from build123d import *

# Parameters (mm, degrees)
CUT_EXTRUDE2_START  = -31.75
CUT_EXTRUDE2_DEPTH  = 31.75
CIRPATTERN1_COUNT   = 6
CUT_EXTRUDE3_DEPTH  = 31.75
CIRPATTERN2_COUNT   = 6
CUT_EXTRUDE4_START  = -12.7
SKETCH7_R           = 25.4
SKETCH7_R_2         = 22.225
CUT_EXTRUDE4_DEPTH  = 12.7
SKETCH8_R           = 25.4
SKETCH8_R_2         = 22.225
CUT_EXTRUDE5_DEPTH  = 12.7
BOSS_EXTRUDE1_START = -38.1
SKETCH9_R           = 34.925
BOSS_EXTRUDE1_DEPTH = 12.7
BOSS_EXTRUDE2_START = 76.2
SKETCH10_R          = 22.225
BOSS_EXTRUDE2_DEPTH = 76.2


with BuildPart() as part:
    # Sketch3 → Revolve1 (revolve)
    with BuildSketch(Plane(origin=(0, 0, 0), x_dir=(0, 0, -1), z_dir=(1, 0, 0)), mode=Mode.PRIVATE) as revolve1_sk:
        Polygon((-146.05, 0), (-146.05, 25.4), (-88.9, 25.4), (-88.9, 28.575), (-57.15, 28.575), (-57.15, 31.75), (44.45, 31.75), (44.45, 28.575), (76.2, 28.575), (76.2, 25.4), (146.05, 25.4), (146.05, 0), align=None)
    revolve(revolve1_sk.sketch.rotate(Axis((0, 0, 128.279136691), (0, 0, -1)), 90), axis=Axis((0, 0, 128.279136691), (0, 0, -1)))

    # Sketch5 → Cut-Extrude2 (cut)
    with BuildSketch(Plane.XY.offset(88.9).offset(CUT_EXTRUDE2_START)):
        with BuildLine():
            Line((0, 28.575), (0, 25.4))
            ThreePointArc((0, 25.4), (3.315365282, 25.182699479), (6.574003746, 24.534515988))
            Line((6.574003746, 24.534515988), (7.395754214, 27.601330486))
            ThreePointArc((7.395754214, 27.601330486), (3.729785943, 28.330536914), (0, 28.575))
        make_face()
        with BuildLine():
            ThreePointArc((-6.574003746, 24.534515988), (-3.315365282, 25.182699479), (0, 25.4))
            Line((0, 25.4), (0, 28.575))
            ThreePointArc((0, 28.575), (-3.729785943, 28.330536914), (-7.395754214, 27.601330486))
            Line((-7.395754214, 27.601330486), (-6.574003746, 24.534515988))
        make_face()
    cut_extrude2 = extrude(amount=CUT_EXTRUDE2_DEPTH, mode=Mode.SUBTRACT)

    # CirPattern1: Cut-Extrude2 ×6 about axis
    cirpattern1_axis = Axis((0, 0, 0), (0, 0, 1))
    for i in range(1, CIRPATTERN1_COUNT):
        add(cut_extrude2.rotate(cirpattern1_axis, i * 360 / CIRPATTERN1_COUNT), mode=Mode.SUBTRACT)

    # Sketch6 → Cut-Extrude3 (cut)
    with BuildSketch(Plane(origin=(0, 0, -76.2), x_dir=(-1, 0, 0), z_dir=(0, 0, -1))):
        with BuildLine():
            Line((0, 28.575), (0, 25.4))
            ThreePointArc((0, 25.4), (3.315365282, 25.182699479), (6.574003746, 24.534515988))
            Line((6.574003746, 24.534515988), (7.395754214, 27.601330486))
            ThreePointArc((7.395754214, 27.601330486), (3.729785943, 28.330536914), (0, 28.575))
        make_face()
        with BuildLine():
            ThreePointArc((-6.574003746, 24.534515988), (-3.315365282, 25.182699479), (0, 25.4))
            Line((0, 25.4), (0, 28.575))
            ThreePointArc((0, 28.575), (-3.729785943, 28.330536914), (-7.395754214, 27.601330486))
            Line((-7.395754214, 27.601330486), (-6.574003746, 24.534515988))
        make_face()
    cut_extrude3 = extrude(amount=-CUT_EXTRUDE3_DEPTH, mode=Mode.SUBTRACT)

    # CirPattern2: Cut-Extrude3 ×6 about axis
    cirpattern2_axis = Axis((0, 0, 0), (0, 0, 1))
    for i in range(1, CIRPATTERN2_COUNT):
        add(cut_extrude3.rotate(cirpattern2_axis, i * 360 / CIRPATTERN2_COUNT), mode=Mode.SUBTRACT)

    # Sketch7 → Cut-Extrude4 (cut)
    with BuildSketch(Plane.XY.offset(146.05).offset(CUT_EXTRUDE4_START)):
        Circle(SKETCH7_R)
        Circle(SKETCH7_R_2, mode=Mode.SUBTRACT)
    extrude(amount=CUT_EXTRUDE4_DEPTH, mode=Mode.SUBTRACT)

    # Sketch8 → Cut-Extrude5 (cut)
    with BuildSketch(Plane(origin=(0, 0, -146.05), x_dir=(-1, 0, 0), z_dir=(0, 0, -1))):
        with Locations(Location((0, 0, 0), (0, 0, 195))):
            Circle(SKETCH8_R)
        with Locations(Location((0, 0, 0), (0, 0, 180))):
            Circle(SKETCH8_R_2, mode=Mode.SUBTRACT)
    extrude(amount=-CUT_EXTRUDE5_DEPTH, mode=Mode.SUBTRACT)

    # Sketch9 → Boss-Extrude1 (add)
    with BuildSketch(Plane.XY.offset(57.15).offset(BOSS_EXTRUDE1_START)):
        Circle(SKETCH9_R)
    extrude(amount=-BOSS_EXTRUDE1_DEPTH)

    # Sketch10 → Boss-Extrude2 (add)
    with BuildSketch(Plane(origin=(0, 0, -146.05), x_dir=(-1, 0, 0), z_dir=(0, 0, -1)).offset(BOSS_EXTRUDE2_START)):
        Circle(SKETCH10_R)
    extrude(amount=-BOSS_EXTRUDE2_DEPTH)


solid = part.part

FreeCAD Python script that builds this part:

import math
import FreeCAD as App
import Part
import Sketcher

V = App.Vector
Q = App.Units.Quantity

doc = App.newDocument("Part")
body = doc.addObject("PartDesign::Body", "Body")

# Sketch on YZ plane
sketch1 = body.newObject("Sketcher::SketchObject", "Sketch")
sketch1.AttachmentSupport = (doc.getObject("YZ_Plane"), [""])
sketch1.MapMode = "FlatFace"
sketch1.addGeometry(Part.LineSegment(V(25.4, 146.1, 0), V(0, 146.1, 0)), False)
sketch1.addGeometry(Part.LineSegment(V(0, 146.1, 0), V(0, -146.1, 0)), False)
sketch1.addGeometry(Part.LineSegment(V(0, -146.1, 0), V(25.4, -146.1, 0)), False)
sketch1.addGeometry(Part.LineSegment(V(25.4, -146.1, 0), V(25.4, -76.2, 0)), False)
sketch1.addGeometry(Part.LineSegment(V(25.4, -76.2, 0), V(28.6, -76.2, 0)), False)
sketch1.addGeometry(Part.LineSegment(V(28.6, -76.2, 0), V(28.6, -44.5, 0)), False)
sketch1.addGeometry(Part.LineSegment(V(28.6, -44.5, 0), V(31.8, -44.5, 0)), False)
sketch1.addGeometry(Part.LineSegment(V(31.8, -44.5, 0), V(31.8, 57.1, 0)), False)
sketch1.addGeometry(Part.LineSegment(V(31.8, 57.1, 0), V(28.6, 57.1, 0)), False)
sketch1.addGeometry(Part.LineSegment(V(28.6, 57.1, 0), V(28.6, 88.9, 0)), False)
sketch1.addGeometry(Part.LineSegment(V(28.6, 88.9, 0), V(25.4, 88.9, 0)), False)
sketch1.addGeometry(Part.LineSegment(V(25.4, 88.9, 0), V(25.4, 146.1, 0)), False)
sketch1.addConstraint(Sketcher.Constraint("Coincident", 0, 2, 1, 1))
sketch1.addConstraint(Sketcher.Constraint("Coincident", 1, 2, 2, 1))
sketch1.addConstraint(Sketcher.Constraint("Coincident", 2, 2, 3, 1))
sketch1.addConstraint(Sketcher.Constraint("Coincident", 3, 2, 4, 1))
sketch1.addConstraint(Sketcher.Constraint("Coincident", 4, 2, 5, 1))
sketch1.addConstraint(Sketcher.Constraint("Coincident", 5, 2, 6, 1))
sketch1.addConstraint(Sketcher.Constraint("Coincident", 6, 2, 7, 1))
sketch1.addConstraint(Sketcher.Constraint("Coincident", 7, 2, 8, 1))
sketch1.addConstraint(Sketcher.Constraint("Coincident", 8, 2, 9, 1))
sketch1.addConstraint(Sketcher.Constraint("Coincident", 9, 2, 10, 1))
sketch1.addConstraint(Sketcher.Constraint("Coincident", 10, 2, 11, 1))
sketch1.addConstraint(Sketcher.Constraint("Coincident", 11, 2, 0, 1))
sketch1.addConstraint(Sketcher.Constraint("Horizontal", 0))
sketch1.addConstraint(Sketcher.Constraint("Vertical", 1))
sketch1.addConstraint(Sketcher.Constraint("Horizontal", 2))
sketch1.addConstraint(Sketcher.Constraint("Vertical", 3))
sketch1.addConstraint(Sketcher.Constraint("Horizontal", 4))
sketch1.addConstraint(Sketcher.Constraint("Vertical", 5))
sketch1.addConstraint(Sketcher.Constraint("Horizontal", 6))
sketch1.addConstraint(Sketcher.Constraint("Vertical", 7))
sketch1.addConstraint(Sketcher.Constraint("Horizontal", 8))
sketch1.addConstraint(Sketcher.Constraint("Vertical", 9))
sketch1.addConstraint(Sketcher.Constraint("Horizontal", 10))
sketch1.addConstraint(Sketcher.Constraint("Vertical", 11))
sketch1.addConstraint(Sketcher.Constraint("Symmetric", 0, 2, 1, 2, -1, 1))
sketch1.addConstraint(Sketcher.Constraint("Vertical", 5, 2, 8, 2))
sketch1.addConstraint(Sketcher.Constraint("Vertical", 3, 2, 10, 2))
sketch1.addConstraint(Sketcher.Constraint("Equal", 4, 6))
sketch1.addConstraint(Sketcher.Constraint("Equal", 5, 9))
sketch1.addConstraint(Sketcher.Constraint("DistanceX", 0, 2, 0, 1, Q("1 in")))
sketch1.addConstraint(Sketcher.Constraint("DistanceY", 7, 1, 7, 2, Q("4 in")))
sketch1.addConstraint(Sketcher.Constraint("DistanceY", 1, 2, 1, 1, Q("11.5 in")))
sketch1.addConstraint(Sketcher.Constraint("DistanceY", 3, 2, -1, 1, Q("3 in")))
sketch1.addConstraint(Sketcher.Constraint("DistanceY", 2, 2, 5, 2, Q("4 in")))
sketch1.addConstraint(Sketcher.Constraint("DistanceX", 4, 1, 4, 2, Q("0.125 in")))
revolution = body.newObject("PartDesign::Revolution", "Revolution")
revolution.Profile = sketch1
revolution.ReferenceAxis = (sketch1, ["V_Axis"])
revolution.Angle = 360

# Sketch on XY plane
sketch2 = body.newObject("Sketcher::SketchObject", "Sketch001")
sketch2.AttachmentSupport = (doc.getObject("XY_Plane"), [""])
sketch2.MapMode = "FlatFace"
sketch2.AttachmentOffset = App.Placement(V(0, 0, 2.25 * 25.4), App.Rotation())
sketch2.addGeometry(Part.ArcOfCircle(Part.Circle(V(0, 0, 0), V(0, 0, 1), 25.4), math.radians(75), math.radians(90)), False)
sketch2.addGeometry(Part.LineSegment(V(6.6, 24.5, 0), V(7.4, 27.6, 0)), False)
sketch2.addGeometry(Part.ArcOfCircle(Part.Circle(V(0, 0, 0), V(0, 0, 1), 28.6), math.radians(75), math.radians(90)), False)
sketch2.addGeometry(Part.ArcOfCircle(Part.Circle(V(0, 0, 0), V(0, 0, 1), 28.6), math.radians(90), math.radians(105)), False)
sketch2.addGeometry(Part.LineSegment(V(-7.4, 27.6, 0), V(-6.6, 24.5, 0)), False)
sketch2.addGeometry(Part.ArcOfCircle(Part.Circle(V(0, 0, 0), V(0, 0, 1), 25.4), math.radians(90), math.radians(105)), False)
sketch2.addConstraint(Sketcher.Constraint("Coincident", 0, 1, 1, 1))
sketch2.addConstraint(Sketcher.Constraint("Coincident", 1, 2, 2, 1))
sketch2.addConstraint(Sketcher.Constraint("Tangent", 2, 2, 3, 1))
sketch2.addConstraint(Sketcher.Constraint("Coincident", 3, 2, 4, 1))
sketch2.addConstraint(Sketcher.Constraint("Coincident", 4, 2, 5, 2))
sketch2.addConstraint(Sketcher.Constraint("Tangent", 5, 1, 0, 2))
sketch2.addConstraint(Sketcher.Constraint("Coincident", 0, 3, -1, 1))
sketch2.addConstraint(Sketcher.Constraint("Coincident", 2, 3, -1, 1))
sketch2.addConstraint(Sketcher.Constraint("Equal", 2, 3))
sketch2.addConstraint(Sketcher.Constraint("Equal", 0, 5))
sketch2.addConstraint(Sketcher.Constraint("PointOnObject", 2, 2, -2))
sketch2.addConstraint(Sketcher.Constraint("PointOnObject", 5, 1, -2))
sketch2.addConstraint(Sketcher.Constraint("Horizontal", 1, 2, 3, 2))
sketch2.addConstraint(Sketcher.Constraint("Horizontal", 0, 1, 4, 2))
sketch2.addConstraint(Sketcher.Constraint("Radius", 0, Q("1 in")))
sketch2.addConstraint(Sketcher.Constraint("Angle", 1, Q("75 deg")))
sketch2.addConstraint(Sketcher.Constraint("Radius", 2, Q("1.125 in")))
sketch2.addConstraint(Sketcher.Constraint("DistanceY", -1, 1, 1, 2, 27.60133))
pocket1 = body.newObject("PartDesign::Pocket", "Pocket")
pocket1.Profile = sketch2
pocket1.Length = Q("1.25 in")
pocket1.Reversed = True
doc.recompute()

polarpattern = body.newObject("PartDesign::PolarPattern", "PolarPattern")
polarpattern.Originals = [pocket1]
polarpattern.Axis = (doc.getObject("Z_Axis"), [""])
polarpattern.Angle = 360
polarpattern.Occurrences = 6
body.Tip = polarpattern

# Sketch on XY plane
sketch3 = body.newObject("Sketcher::SketchObject", "Sketch002")
sketch3.AttachmentSupport = (doc.getObject("XY_Plane"), [""])
sketch3.MapMode = "FlatFace"
sketch3.AttachmentOffset = App.Placement(V(0, 0, -3 * 25.4), App.Rotation())
sketch3.addGeometry(Part.ArcOfCircle(Part.Circle(V(0, 0, 0), V(0, 0, 1), 25.4), math.radians(90), math.radians(105)), False)
sketch3.addGeometry(Part.LineSegment(V(-6.6, 24.5, 0), V(-7.4, 27.6, 0)), False)
sketch3.addGeometry(Part.ArcOfCircle(Part.Circle(V(0, 0, 0), V(0, 0, 1), 28.6), math.radians(90), math.radians(105)), False)
sketch3.addGeometry(Part.ArcOfCircle(Part.Circle(V(0, 0, 0), V(0, 0, 1), 28.6), math.radians(75), math.radians(90)), False)
sketch3.addGeometry(Part.LineSegment(V(7.4, 27.6, 0), V(6.6, 24.5, 0)), False)
sketch3.addGeometry(Part.ArcOfCircle(Part.Circle(V(0, 0, 0), V(0, 0, 1), 25.4), math.radians(75), math.radians(90)), False)
sketch3.addConstraint(Sketcher.Constraint("Coincident", 0, 2, 1, 1))
sketch3.addConstraint(Sketcher.Constraint("Coincident", 1, 2, 2, 2))
sketch3.addConstraint(Sketcher.Constraint("Tangent", 2, 1, 3, 2))
sketch3.addConstraint(Sketcher.Constraint("Coincident", 3, 1, 4, 1))
sketch3.addConstraint(Sketcher.Constraint("Coincident", 4, 2, 5, 1))
sketch3.addConstraint(Sketcher.Constraint("Tangent", 5, 2, 0, 1))
sketch3.addConstraint(Sketcher.Constraint("Coincident", 0, 3, -1, 1))
sketch3.addConstraint(Sketcher.Constraint("Coincident", 2, 3, -1, 1))
sketch3.addConstraint(Sketcher.Constraint("Equal", 2, 3))
sketch3.addConstraint(Sketcher.Constraint("Equal", 0, 5))
sketch3.addConstraint(Sketcher.Constraint("PointOnObject", 2, 1, -2))
sketch3.addConstraint(Sketcher.Constraint("PointOnObject", 5, 2, -2))
sketch3.addConstraint(Sketcher.Constraint("Horizontal", 1, 2, 3, 1))
sketch3.addConstraint(Sketcher.Constraint("Horizontal", 0, 2, 4, 2))
sketch3.addConstraint(Sketcher.Constraint("Radius", 0, Q("1 in")))
sketch3.addConstraint(Sketcher.Constraint("Angle", 1, Q("105 deg")))
sketch3.addConstraint(Sketcher.Constraint("Radius", 2, Q("1.125 in")))
sketch3.addConstraint(Sketcher.Constraint("DistanceY", -1, 1, 1, 2, 27.60133))
pocket2 = body.newObject("PartDesign::Pocket", "Pocket001")
pocket2.Profile = sketch3
pocket2.Length = Q("1.25 in")
pocket2.Reversed = True
doc.recompute()

polarpattern2 = body.newObject("PartDesign::PolarPattern", "PolarPattern001")
polarpattern2.Originals = [pocket2]
polarpattern2.Axis = (doc.getObject("Z_Axis"), [""])
polarpattern2.Angle = 360
polarpattern2.Occurrences = 6
body.Tip = polarpattern2

# Sketch on XY plane
sketch4 = body.newObject("Sketcher::SketchObject", "Sketch003")
sketch4.AttachmentSupport = (doc.getObject("XY_Plane"), [""])
sketch4.MapMode = "FlatFace"
sketch4.AttachmentOffset = App.Placement(V(0, 0, 5.25 * 25.4), App.Rotation())
sketch4.addGeometry(Part.Circle(V(0, 0, 0), V(0, 0, 1), 25), False)
sketch4.addGeometry(Part.Circle(V(0, 0, 0), V(0, 0, 1), 22), False)
sketch4.addConstraint(Sketcher.Constraint("Coincident", 0, 3, -1, 1))
sketch4.addConstraint(Sketcher.Constraint("Coincident", 1, 3, -1, 1))
sketch4.addConstraint(Sketcher.Constraint("Diameter", 0, Q("2 in")))
sketch4.addConstraint(Sketcher.Constraint("Diameter", 1, Q("1.75 in")))
pocket3 = body.newObject("PartDesign::Pocket", "Pocket002")
pocket3.Profile = sketch4
pocket3.Length = Q("0.5 in")
pocket3.Reversed = True

# Sketch on XY plane
sketch5 = body.newObject("Sketcher::SketchObject", "Sketch004")
sketch5.AttachmentSupport = (doc.getObject("XY_Plane"), [""])
sketch5.MapMode = "FlatFace"
sketch5.AttachmentOffset = App.Placement(V(0, 0, -5.75 * 25.4), App.Rotation())
sketch5.addGeometry(Part.Circle(V(0, 0, 0), V(0, 0, 1), 25), False)
sketch5.addGeometry(Part.Circle(V(0, 0, 0), V(0, 0, 1), 22), False)
sketch5.addConstraint(Sketcher.Constraint("Coincident", 0, 3, -1, 1))
sketch5.addConstraint(Sketcher.Constraint("Coincident", 1, 3, -1, 1))
sketch5.addConstraint(Sketcher.Constraint("Diameter", 0, Q("2 in")))
sketch5.addConstraint(Sketcher.Constraint("Diameter", 1, Q("1.75 in")))
pocket4 = body.newObject("PartDesign::Pocket", "Pocket003")
pocket4.Profile = sketch5
pocket4.Length = Q("0.5 in")
pocket4.Reversed = True

# Sketch on XY plane
sketch6 = body.newObject("Sketcher::SketchObject", "Sketch005")
sketch6.AttachmentSupport = (doc.getObject("XY_Plane"), [""])
sketch6.MapMode = "FlatFace"
sketch6.AttachmentOffset = App.Placement(V(0, 0, 0.75 * 25.4), App.Rotation())
sketch6.addGeometry(Part.Circle(V(0, 0, 0), V(0, 0, 1), 35), False)
sketch6.addConstraint(Sketcher.Constraint("Coincident", 0, 3, -1, 1))
sketch6.addConstraint(Sketcher.Constraint("Diameter", 0, Q("2.75 in")))
pad1 = body.newObject("PartDesign::Pad", "Pad")
pad1.Profile = sketch6
pad1.Length = Q("0.5 in")
pad1.Reversed = True

# Sketch on XY plane
sketch7 = body.newObject("Sketcher::SketchObject", "Sketch006")
sketch7.AttachmentSupport = (doc.getObject("XY_Plane"), [""])
sketch7.MapMode = "FlatFace"
sketch7.AttachmentOffset = App.Placement(V(0, 0, -8.75 * 25.4), App.Rotation())
sketch7.addGeometry(Part.Circle(V(0, 0, 0), V(0, 0, 1), 22), False)
sketch7.addConstraint(Sketcher.Constraint("Coincident", 0, 3, -1, 1))
sketch7.addConstraint(Sketcher.Constraint("Diameter", 0, Q("1.75 in")))
pad2 = body.newObject("PartDesign::Pad", "Pad001")
pad2.Profile = sketch7
pad2.Length = Q("3 in")

doc.recompute()
